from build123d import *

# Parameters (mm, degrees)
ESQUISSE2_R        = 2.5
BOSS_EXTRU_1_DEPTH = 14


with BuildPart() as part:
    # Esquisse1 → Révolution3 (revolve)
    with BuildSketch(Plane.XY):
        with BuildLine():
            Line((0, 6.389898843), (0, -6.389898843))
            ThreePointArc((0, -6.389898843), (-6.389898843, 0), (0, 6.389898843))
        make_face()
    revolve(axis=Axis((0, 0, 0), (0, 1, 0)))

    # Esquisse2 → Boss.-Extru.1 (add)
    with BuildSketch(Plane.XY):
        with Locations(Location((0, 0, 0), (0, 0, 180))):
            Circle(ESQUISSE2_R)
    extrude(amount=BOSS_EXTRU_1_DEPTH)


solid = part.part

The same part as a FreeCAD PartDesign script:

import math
import FreeCAD as App
import Part
import Sketcher
Q = App.Units.Quantity

doc = App.newDocument("Part")
params = doc.addObject("Spreadsheet::Sheet", "Params")
for row, (alias, value) in enumerate([
    ("revolution_angle", "360 deg"),
    ("sketch2_diameter", "5 mm"),
    ("pad1_length", "14 mm"),
], start=1):
    params.set(f"A{row}", alias)
    params.set(f"B{row}", "=" + value)
    params.setAlias(f"B{row}", alias)

body = doc.addObject("PartDesign::Body", "Body")

# Sketch on XY plane
sketch1 = body.newObject("Sketcher::SketchObject", "Sketch")
sketch1.AttachmentSupport = (doc.getObject("XY_Plane"), [""])
sketch1.MapMode = "FlatFace"
sketch1.addGeometry(Part.LineSegment(App.Vector(0, -6, 0), App.Vector(0, 6, 0)), False)
sketch1.addGeometry(Part.ArcOfCircle(Part.Circle(App.Vector(0, 0, 0), App.Vector(0, 0, 1), 6), math.radians(90), math.radians(270)), False)
sketch1.addConstraint(Sketcher.Constraint("Coincident", 0, 1, 1, 2))
sketch1.addConstraint(Sketcher.Constraint("Coincident", 1, 1, 0, 2))
sketch1.addConstraint(Sketcher.Constraint("Vertical", 0))
sketch1.addConstraint(Sketcher.Constraint("Coincident", 1, 3, -1, 1))
sketch1.addConstraint(Sketcher.Constraint("PointOnObject", 0, 1, -2))
sketch1.addConstraint(Sketcher.Constraint("Radius", 1, Q("6.389899 mm")))
revolution = body.newObject("PartDesign::Revolution", "Revolution")
revolution.Profile = sketch1
revolution.ReferenceAxis = (sketch1, ["V_Axis"])
revolution.setExpression("Angle", "Params.revolution_angle")

# Sketch on XY plane
sketch2 = body.newObject("Sketcher::SketchObject", "Sketch001")
sketch2.AttachmentSupport = (doc.getObject("XY_Plane"), [""])
sketch2.MapMode = "FlatFace"
sketch2.addGeometry(Part.Circle(App.Vector(0, 0, 0), App.Vector(0, 0, 1), 2.5), False)
sketch2.addConstraint(Sketcher.Constraint("Coincident", 0, 3, -1, 1))
sketch2.addConstraint(Sketcher.Constraint("Diameter", 0, Q("5 mm")))
sketch2.setExpression("Constraints[1]", "Params.sketch2_diameter")
pad1 = body.newObject("PartDesign::Pad", "Pad")
pad1.Profile = sketch2
pad1.setExpression("Length", "Params.pad1_length")

doc.recompute()
